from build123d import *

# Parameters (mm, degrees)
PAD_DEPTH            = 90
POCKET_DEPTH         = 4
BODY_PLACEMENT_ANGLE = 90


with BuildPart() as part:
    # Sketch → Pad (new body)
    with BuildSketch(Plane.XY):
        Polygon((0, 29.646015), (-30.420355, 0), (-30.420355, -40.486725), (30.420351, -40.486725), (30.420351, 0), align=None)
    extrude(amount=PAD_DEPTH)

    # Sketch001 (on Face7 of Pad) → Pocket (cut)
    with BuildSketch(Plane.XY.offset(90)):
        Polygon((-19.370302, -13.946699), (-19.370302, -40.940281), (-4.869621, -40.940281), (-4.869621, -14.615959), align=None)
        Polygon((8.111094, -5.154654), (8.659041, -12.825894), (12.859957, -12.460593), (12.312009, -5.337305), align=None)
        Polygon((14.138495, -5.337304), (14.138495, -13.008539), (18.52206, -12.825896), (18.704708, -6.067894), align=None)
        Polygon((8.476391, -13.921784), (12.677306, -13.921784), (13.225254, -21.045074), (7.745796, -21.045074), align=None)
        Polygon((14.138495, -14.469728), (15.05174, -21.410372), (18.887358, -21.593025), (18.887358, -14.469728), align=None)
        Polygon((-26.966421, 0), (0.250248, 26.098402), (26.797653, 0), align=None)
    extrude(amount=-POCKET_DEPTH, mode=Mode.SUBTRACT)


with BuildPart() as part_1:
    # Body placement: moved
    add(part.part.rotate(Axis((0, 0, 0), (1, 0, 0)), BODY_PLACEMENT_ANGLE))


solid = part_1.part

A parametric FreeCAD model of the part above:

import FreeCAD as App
import Part
import Sketcher
Q = App.Units.Quantity


def add_polygon(sketch, points):
    """Adds a closed chain of lines whose ends are joined by coincident constraints."""
    first, n = sketch.GeometryCount, len(points)
    for a, b in zip(points, points[1:] + points[:1]):
        sketch.addGeometry(Part.LineSegment(App.Vector(*a, 0), App.Vector(*b, 0)), False)
    for i in range(n):
        sketch.addConstraint(Sketcher.Constraint("Coincident", first + i, 2, first + (i + 1) % n, 1))

doc = App.newDocument("Part")
body = doc.addObject("PartDesign::Body", "Body")

# Sketch on XY plane
sketch1 = body.newObject("Sketcher::SketchObject", "Sketch")
sketch1.AttachmentSupport = (doc.getObject("XY_Plane"), [""])
sketch1.MapMode = "FlatFace"
add_polygon(sketch1, [(0, 30), (-30, 0), (-30, -40), (30, -40), (30, 0)])  # lines 0-4
sketch1.addConstraint(Sketcher.Constraint("Vertical", 1))
sketch1.addConstraint(Sketcher.Constraint("Horizontal", 2))
sketch1.addConstraint(Sketcher.Constraint("Vertical", 3))
sketch1.addConstraint(Sketcher.Constraint("Symmetric", 0, 2, 3, 2, -1, 1))
sketch1.addConstraint(Sketcher.Constraint("PointOnObject", 0, 2, -1))
sketch1.addConstraint(Sketcher.Constraint("PointOnObject", 4, 2, -2))
sketch1.addConstraint(Sketcher.Constraint("DistanceX", 2, 1, 2, 2, Q("60.840706 mm")))
sketch1.addConstraint(Sketcher.Constraint("DistanceY", 1, 2, 1, 1, Q("40.486725 mm")))
sketch1.addConstraint(Sketcher.Constraint("DistanceY", 2, 2, 4, 2, Q("70.13274 mm")))
pad1 = body.newObject("PartDesign::Pad", "Pad")
pad1.Profile = sketch1
pad1.Length = 90

# Sketch on XY plane
sketch2 = body.newObject("Sketcher::SketchObject", "Sketch001")
sketch2.AttachmentSupport = (doc.getObject("XY_Plane"), [""])
sketch2.MapMode = "FlatFace"
sketch2.AttachmentOffset = App.Placement(App.Vector(0, 0, 90), App.Rotation())
add_polygon(sketch2, [(-19.4, -13.9), (-19.4, -40.9), (-4.9, -40.9), (-4.9, -14.6)])  # lines 0-3
add_polygon(sketch2, [(8.1, -5.2), (8.7, -12.8), (12.9, -12.5), (12.3, -5.3)])  # lines 4-7
add_polygon(sketch2, [(14.1, -5.3), (14.1, -13), (18.5, -12.8), (18.7, -6.1)])  # lines 8-11
add_polygon(sketch2, [(12.7, -13.9), (8.5, -13.9), (7.7, -21), (13.2, -21)])  # lines 12-15
add_polygon(sketch2, [(14.1, -14.5), (15.1, -21.4), (18.9, -21.6), (18.9, -14.5)])  # lines 16-19
add_polygon(sketch2, [(0.3, 26.1), (-27, 0), (26.8, 0)])  # lines 20-22
sketch2.addConstraint(Sketcher.Constraint("Vertical", 0))
sketch2.addConstraint(Sketcher.Constraint("Horizontal", 1))
sketch2.addConstraint(Sketcher.Constraint("Vertical", 2))
sketch2.addConstraint(Sketcher.Constraint("Vertical", 8))
sketch2.addConstraint(Sketcher.Constraint("Horizontal", 12))
sketch2.addConstraint(Sketcher.Constraint("Horizontal", 14))
sketch2.addConstraint(Sketcher.Constraint("Vertical", 18))
sketch2.addConstraint(Sketcher.Constraint("Horizontal", 19))
sketch2.addConstraint(Sketcher.Constraint("Horizontal", 21))
sketch2.addConstraint(Sketcher.Constraint("PointOnObject", 20, 2, -1))
sketch2.addConstraint(Sketcher.Constraint("Parallel", 6, 15))
sketch2.addConstraint(Sketcher.Constraint("Horizontal", 6, 2, 11, 2))
sketch2.addConstraint(Sketcher.Constraint("Vertical", 11, 2, 19, 2))
sketch2.addConstraint(Sketcher.Constraint("Equal", 6, 15))
sketch2.addConstraint(Sketcher.Constraint("DistanceX", 1, 1, 1, 2, Q("14.500681 mm")))
sketch2.addConstraint(Sketcher.Constraint("DistanceY", 0, 2, 0, 1, Q("26.993582 mm")))
sketch2.addConstraint(Sketcher.Constraint("DistanceY", 2, 1, 2, 2, Q("26.324322 mm")))
sketch2.addConstraint(Sketcher.Constraint("DistanceX", 0, 2, -1, 1, Q("19.370302 mm")))
sketch2.addConstraint(Sketcher.Constraint("DistanceY", 3, 2, -1, 1, Q("13.946699 mm")))
sketch2.addConstraint(Sketcher.Constraint("DistanceY", -1, 1, 22, 2, Q("26.098402 mm")))
sketch2.addConstraint(Sketcher.Constraint("DistanceY", 4, 2, 5, 2, Q("0.365301 mm")))
sketch2.addConstraint(Sketcher.Constraint("DistanceX", 7, 2, 8, 2, Q("6.027401 mm")))
sketch2.addConstraint(Sketcher.Constraint("DistanceX", 6, 2, 10, 2, Q("6.392699 mm")))
sketch2.addConstraint(Sketcher.Constraint("DistanceY", 5, 2, 10, 2, Q("6.392699 mm")))
sketch2.addConstraint(Sketcher.Constraint("DistanceX", 13, 2, 8, 2, Q("6.392699 mm")))
sketch2.addConstraint(Sketcher.Constraint("DistanceX", 5, 2, 18, 2, Q("6.027401 mm")))
sketch2.addConstraint(Sketcher.Constraint("DistanceX", 20, 2, 2, 2, Q("22.0968 mm")))
sketch2.addConstraint(Sketcher.Constraint("Distance", 5, Q("4.216769 mm")))
sketch2.addConstraint(Sketcher.Constraint("Distance", 6, Q("7.144332 mm")))
sketch2.addConstraint(Sketcher.Constraint("Distance", 9, Q("4.387368 mm")))
sketch2.addConstraint(Sketcher.Constraint("Distance", 10, Q("6.76047 mm")))
sketch2.addConstraint(Sketcher.Constraint("Distance", 11, Q("4.624291 mm")))
sketch2.addConstraint(Sketcher.Constraint("Distance", 13, Q("7.160658 mm")))
sketch2.addConstraint(Sketcher.Constraint("Distance", 16, Q("7.000468 mm")))
sketch2.addConstraint(Sketcher.Constraint("Distance", 20, Q("37.70774 mm")))
sketch2.addConstraint(Sketcher.Constraint("Distance", 22, Q("37.227561 mm")))
sketch2.addConstraint(Sketcher.Constraint("DistanceX", 12, 2, 12, 1, Q("4.200915 mm")))
sketch2.addConstraint(Sketcher.Constraint("DistanceX", 14, 1, 14, 2, Q("5.479458 mm")))
sketch2.addConstraint(Sketcher.Constraint("DistanceY", 8, 2, 8, 1, Q("7.671235 mm")))
sketch2.addConstraint(Sketcher.Constraint("DistanceY", 18, 1, 18, 2, Q("7.123297 mm")))
sketch2.addConstraint(Sketcher.Constraint("DistanceX", -1, 1, 4, 2, Q("8.659041 mm")))
sketch2.addConstraint(Sketcher.Constraint("DistanceY", 8, 2, -1, 1, Q("13.008539 mm")))
sketch2.addConstraint(Sketcher.Constraint("DistanceX", -1, 1, 16, 2, Q("15.05174 mm")))
sketch2.addConstraint(Sketcher.Constraint("DistanceY", 16, 2, -1, 1, Q("21.410372 mm")))
sketch2.addConstraint(Sketcher.Constraint("DistanceY", 6, 2, 7, 2, Q("0.182651 mm")))
sketch2.addConstraint(Sketcher.Constraint("DistanceY", 12, 2, 4, 2, Q("1.09589 mm")))
pocket1 = body.newObject("PartDesign::Pocket", "Pocket")
pocket1.Profile = sketch2
pocket1.Length = 4
body2 = doc.addObject("PartDesign::Body", "Body001")
doc.recompute()

body.Placement = App.Placement(App.Vector(0, 0, 0), App.Rotation(App.Vector(1, 0, 0), 90))
boolean = body2.newObject("PartDesign::Boolean", "Boolean")
boolean.Type = "Fuse"
boolean.addObjects([body])

doc.recompute()
